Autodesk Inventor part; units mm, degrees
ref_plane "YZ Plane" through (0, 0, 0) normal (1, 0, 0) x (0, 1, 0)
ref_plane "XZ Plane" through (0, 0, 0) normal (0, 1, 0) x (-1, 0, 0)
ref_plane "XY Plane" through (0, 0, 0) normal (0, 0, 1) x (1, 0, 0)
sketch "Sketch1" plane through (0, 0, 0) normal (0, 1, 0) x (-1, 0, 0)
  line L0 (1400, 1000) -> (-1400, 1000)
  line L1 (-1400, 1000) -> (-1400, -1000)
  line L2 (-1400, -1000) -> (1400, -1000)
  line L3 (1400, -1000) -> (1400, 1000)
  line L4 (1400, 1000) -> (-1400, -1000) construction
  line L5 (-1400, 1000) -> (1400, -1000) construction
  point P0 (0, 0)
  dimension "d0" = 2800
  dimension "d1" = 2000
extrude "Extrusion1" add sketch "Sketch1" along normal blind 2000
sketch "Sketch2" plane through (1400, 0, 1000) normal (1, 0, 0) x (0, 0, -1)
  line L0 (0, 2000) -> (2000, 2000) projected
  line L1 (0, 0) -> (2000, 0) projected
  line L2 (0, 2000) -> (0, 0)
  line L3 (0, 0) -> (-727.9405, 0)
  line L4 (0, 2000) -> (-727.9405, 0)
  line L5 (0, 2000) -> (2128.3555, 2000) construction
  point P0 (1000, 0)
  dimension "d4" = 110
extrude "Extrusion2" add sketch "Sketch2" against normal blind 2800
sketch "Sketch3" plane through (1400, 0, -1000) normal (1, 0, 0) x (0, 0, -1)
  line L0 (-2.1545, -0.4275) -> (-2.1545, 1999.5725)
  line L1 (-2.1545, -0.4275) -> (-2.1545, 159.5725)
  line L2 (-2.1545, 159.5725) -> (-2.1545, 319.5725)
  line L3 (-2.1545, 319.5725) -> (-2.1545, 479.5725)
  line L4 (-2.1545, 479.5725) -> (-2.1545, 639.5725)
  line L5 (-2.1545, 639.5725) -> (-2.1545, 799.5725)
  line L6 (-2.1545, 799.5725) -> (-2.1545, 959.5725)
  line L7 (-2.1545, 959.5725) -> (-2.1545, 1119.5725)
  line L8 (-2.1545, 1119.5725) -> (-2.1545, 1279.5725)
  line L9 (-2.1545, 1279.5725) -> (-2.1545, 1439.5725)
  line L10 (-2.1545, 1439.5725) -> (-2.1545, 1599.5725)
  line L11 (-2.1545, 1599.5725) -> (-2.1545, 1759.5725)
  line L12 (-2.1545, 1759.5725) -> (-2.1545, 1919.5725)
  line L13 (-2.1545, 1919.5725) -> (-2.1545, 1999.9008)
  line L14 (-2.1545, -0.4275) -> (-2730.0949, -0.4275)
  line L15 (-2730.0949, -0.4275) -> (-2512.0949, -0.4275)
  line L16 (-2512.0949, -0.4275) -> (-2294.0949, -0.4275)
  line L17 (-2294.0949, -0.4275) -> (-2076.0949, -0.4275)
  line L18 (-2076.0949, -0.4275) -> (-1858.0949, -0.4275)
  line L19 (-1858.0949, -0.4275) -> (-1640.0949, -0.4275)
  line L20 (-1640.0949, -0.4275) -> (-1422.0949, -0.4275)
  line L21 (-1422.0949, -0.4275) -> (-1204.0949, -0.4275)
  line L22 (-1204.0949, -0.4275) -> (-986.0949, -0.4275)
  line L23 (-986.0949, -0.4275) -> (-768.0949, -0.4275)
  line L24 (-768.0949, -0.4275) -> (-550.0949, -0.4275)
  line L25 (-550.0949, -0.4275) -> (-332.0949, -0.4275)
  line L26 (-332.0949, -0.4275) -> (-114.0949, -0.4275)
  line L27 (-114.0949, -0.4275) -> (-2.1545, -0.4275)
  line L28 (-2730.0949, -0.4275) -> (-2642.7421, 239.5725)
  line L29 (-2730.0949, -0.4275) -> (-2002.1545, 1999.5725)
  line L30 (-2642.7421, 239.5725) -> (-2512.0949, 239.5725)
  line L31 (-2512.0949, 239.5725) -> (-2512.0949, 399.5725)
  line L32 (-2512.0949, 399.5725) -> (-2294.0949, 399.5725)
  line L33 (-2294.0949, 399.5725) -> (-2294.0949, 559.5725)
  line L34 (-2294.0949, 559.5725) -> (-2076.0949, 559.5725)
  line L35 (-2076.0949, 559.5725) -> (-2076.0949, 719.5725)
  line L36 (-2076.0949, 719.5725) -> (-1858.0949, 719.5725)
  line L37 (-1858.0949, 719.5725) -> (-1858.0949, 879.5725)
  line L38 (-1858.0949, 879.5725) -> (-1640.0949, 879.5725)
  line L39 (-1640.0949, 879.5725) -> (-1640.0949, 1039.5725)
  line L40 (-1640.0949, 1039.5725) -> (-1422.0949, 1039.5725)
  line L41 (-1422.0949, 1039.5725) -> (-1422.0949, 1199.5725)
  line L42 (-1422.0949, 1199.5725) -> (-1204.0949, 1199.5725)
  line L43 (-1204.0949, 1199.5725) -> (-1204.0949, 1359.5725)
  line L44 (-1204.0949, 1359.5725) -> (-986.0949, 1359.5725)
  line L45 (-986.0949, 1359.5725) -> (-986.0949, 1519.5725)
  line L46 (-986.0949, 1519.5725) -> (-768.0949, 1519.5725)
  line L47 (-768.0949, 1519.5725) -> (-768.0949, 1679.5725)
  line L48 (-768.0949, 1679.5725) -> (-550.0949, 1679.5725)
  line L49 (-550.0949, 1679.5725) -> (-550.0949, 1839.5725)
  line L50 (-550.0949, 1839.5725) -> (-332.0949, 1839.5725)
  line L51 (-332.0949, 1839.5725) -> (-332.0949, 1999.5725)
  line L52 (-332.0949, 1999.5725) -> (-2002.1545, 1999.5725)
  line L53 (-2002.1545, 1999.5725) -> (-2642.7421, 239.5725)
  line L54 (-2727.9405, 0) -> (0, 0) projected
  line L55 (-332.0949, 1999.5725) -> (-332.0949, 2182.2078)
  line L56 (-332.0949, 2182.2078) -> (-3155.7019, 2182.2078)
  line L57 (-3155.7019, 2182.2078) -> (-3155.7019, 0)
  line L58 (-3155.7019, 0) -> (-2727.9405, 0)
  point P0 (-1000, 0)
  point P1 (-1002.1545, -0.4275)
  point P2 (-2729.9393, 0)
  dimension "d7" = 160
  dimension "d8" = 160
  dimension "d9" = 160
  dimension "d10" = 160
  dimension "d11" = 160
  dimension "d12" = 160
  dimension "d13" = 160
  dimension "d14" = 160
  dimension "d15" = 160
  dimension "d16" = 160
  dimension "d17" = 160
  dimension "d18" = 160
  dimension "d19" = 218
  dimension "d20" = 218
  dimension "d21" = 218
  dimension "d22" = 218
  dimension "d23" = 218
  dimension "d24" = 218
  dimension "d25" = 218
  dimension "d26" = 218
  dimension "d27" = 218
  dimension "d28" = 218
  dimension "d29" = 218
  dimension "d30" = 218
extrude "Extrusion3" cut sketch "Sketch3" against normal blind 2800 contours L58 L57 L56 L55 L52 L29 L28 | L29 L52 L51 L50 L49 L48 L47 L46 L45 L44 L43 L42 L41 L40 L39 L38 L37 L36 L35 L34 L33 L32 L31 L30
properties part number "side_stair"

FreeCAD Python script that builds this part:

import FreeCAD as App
import Part
import Sketcher
from FreeCAD import Vector
Q = App.Units.Quantity

doc = App.newDocument("Part")
params = doc.addObject("Spreadsheet::Sheet", "Params")
for row, (alias, value) in enumerate([
    ("sketch1_width", "2800 mm"),
    ("sketch1_height", "2000 mm"),
    ("pad1_length", "2000 mm"),
    ("sketch2_width", "2000 mm"),
    ("pad2_length", "2800 mm"),
    ("sketch3_width", "160 mm"),
    ("sketch3_height", "218 mm"),
    ("pocket1_length", "2800 mm"),
], start=1):
    params.set(f"A{row}", alias)
    params.set(f"B{row}", "=" + value)
    params.setAlias(f"B{row}", alias)

body = doc.addObject("PartDesign::Body", "Body")

sketch1 = doc.addObject("Sketcher::SketchObject", "Sketch")
body.addObject(sketch1)
sketch1.AttachmentSupport = (doc.XZ_Plane, [""])
sketch1.MapMode = "FlatFace"
sketch1.addGeometry(Part.LineSegment(Vector(-1400, -1000, 0), Vector(-1400, 1000, 0)), False)
sketch1.addGeometry(Part.LineSegment(Vector(-1400, 1000, 0), Vector(1400, 1000, 0)), False)
sketch1.addGeometry(Part.LineSegment(Vector(1400, 1000, 0), Vector(1400, -1000, 0)), False)
sketch1.addGeometry(Part.LineSegment(Vector(1400, -1000, 0), Vector(-1400, -1000, 0)), False)
sketch1.addConstraint(Sketcher.Constraint("Coincident", 0, 2, 1, 1))
sketch1.addConstraint(Sketcher.Constraint("Coincident", 1, 2, 2, 1))
sketch1.addConstraint(Sketcher.Constraint("Coincident", 2, 2, 3, 1))
sketch1.addConstraint(Sketcher.Constraint("Coincident", 3, 2, 0, 1))
sketch1.addConstraint(Sketcher.Constraint("Vertical", 0))
sketch1.addConstraint(Sketcher.Constraint("Horizontal", 1))
sketch1.addConstraint(Sketcher.Constraint("Vertical", 2))
sketch1.addConstraint(Sketcher.Constraint("Horizontal", 3))
sketch1.addConstraint(Sketcher.Constraint("Symmetric", 0, 2, 2, 2, -1, 1))
sketch1.addConstraint(Sketcher.Constraint("DistanceX", 1, 1, 1, 2, Q("2800 mm")))
sketch1.addConstraint(Sketcher.Constraint("DistanceY", 0, 1, 0, 2, Q("2000 mm")))
sketch1.setExpression("Constraints[9]", "Params.sketch1_width")
sketch1.setExpression("Constraints[10]", "Params.sketch1_height")
pad1 = doc.addObject("PartDesign::Pad", "Pad")
body.addObject(pad1)
pad1.Profile = sketch1
pad1.setExpression("Length", "Params.pad1_length")
pad1.Reversed = True

sketch2 = doc.addObject("Sketcher::SketchObject", "Sketch001")
body.addObject(sketch2)
sketch2.AttachmentSupport = (doc.YZ_Plane, [""])
sketch2.MapMode = "FlatFace"
sketch2.AttachmentOffset = App.Placement(Vector(0, 0, 1400), App.Rotation())
sketch2.addGeometry(Part.LineSegment(Vector(0, 1000, 0), Vector(2000, 1000, 0)), False)
sketch2.addGeometry(Part.LineSegment(Vector(2000, 1000, 0), Vector(0, 1728, 0)), False)
sketch2.addGeometry(Part.LineSegment(Vector(0, 1728, 0), Vector(0, 1000, 0)), False)
sketch2.addConstraint(Sketcher.Constraint("Coincident", 0, 2, 1, 1))
sketch2.addConstraint(Sketcher.Constraint("Coincident", 1, 2, 2, 1))
sketch2.addConstraint(Sketcher.Constraint("Coincident", 2, 2, 0, 1))
sketch2.addConstraint(Sketcher.Constraint("Horizontal", 0))
sketch2.addConstraint(Sketcher.Constraint("Vertical", 2))
sketch2.addConstraint(Sketcher.Constraint("PointOnObject", 1, 2, -2))
sketch2.addConstraint(Sketcher.Constraint("DistanceX", 0, 1, 0, 2, Q("2000 mm")))
sketch2.addConstraint(Sketcher.Constraint("Angle", 1, Q("160 deg")))
sketch2.addConstraint(Sketcher.Constraint("DistanceY", -1, 1, 0, 2, Q("1000 mm")))
sketch2.setExpression("Constraints[6]", "Params.sketch2_width")
pad2 = doc.addObject("PartDesign::Pad", "Pad001")
body.addObject(pad2)
pad2.Profile = sketch2
pad2.setExpression("Length", "Params.pad2_length")
pad2.Reversed = True

sketch3 = doc.addObject("Sketcher::SketchObject", "Sketch002")
body.addObject(sketch3)
sketch3.AttachmentSupport = (doc.YZ_Plane, [""])
sketch3.MapMode = "FlatFace"
sketch3.AttachmentOffset = App.Placement(Vector(0, 0, 1400), App.Rotation())
sketch3.addGeometry(Part.LineSegment(Vector(0, 2156, 0), Vector(0, 1730, 0)), False)
sketch3.addGeometry(Part.LineSegment(Vector(0, 1730, 0), Vector(240, 1643, 0)), False)
sketch3.addGeometry(Part.LineSegment(Vector(240, 1643, 0), Vector(240, 1512, 0)), False)
sketch3.addGeometry(Part.LineSegment(Vector(240, 1512, 0), Vector(400, 1512, 0)), False)
sketch3.addGeometry(Part.LineSegment(Vector(400, 1512, 0), Vector(400, 1294, 0)), False)
sketch3.addGeometry(Part.LineSegment(Vector(400, 1294, 0), Vector(560, 1294, 0)), False)
sketch3.addGeometry(Part.LineSegment(Vector(560, 1294, 0), Vector(560, 1076, 0)), False)
sketch3.addGeometry(Part.LineSegment(Vector(560, 1076, 0), Vector(720, 1076, 0)), False)
sketch3.addGeometry(Part.LineSegment(Vector(720, 1076, 0), Vector(720, 858, 0)), False)
sketch3.addGeometry(Part.LineSegment(Vector(720, 858, 0), Vector(880, 858, 0)), False)
sketch3.addGeometry(Part.LineSegment(Vector(880, 858, 0), Vector(880, 640, 0)), False)
sketch3.addGeometry(Part.LineSegment(Vector(880, 640, 0), Vector(1040, 640, 0)), False)
sketch3.addGeometry(Part.LineSegment(Vector(1040, 640, 0), Vector(1040, 422, 0)), False)
sketch3.addGeometry(Part.LineSegment(Vector(1040, 422, 0), Vector(1200, 422, 0)), False)
sketch3.addGeometry(Part.LineSegment(Vector(1200, 422, 0), Vector(1200, 204, 0)), False)
sketch3.addGeometry(Part.LineSegment(Vector(1200, 204, 0), Vector(1360, 204, 0)), False)
sketch3.addGeometry(Part.LineSegment(Vector(1360, 204, 0), Vector(1360, -14, 0)), False)
sketch3.addGeometry(Part.LineSegment(Vector(1360, -14, 0), Vector(1520, -14, 0)), False)
sketch3.addGeometry(Part.LineSegment(Vector(1520, -14, 0), Vector(1520, -232, 0)), False)
sketch3.addGeometry(Part.LineSegment(Vector(1520, -232, 0), Vector(1680, -232, 0)), False)
sketch3.addGeometry(Part.LineSegment(Vector(1680, -232, 0), Vector(1680, -450, 0)), False)
sketch3.addGeometry(Part.LineSegment(Vector(1680, -450, 0), Vector(1840, -450, 0)), False)
sketch3.addGeometry(Part.LineSegment(Vector(1840, -450, 0), Vector(1840, -668, 0)), False)
sketch3.addGeometry(Part.LineSegment(Vector(1840, -668, 0), Vector(2182, -668, 0)), False)
sketch3.addGeometry(Part.LineSegment(Vector(2182, -668, 0), Vector(2182, 2156, 0)), False)
sketch3.addGeometry(Part.LineSegment(Vector(2182, 2156, 0), Vector(0, 2156, 0)), False)
sketch3.addConstraint(Sketcher.Constraint("Coincident", 0, 2, 1, 1))
sketch3.addConstraint(Sketcher.Constraint("Coincident", 1, 2, 2, 1))
sketch3.addConstraint(Sketcher.Constraint("Coincident", 2, 2, 3, 1))
sketch3.addConstraint(Sketcher.Constraint("Coincident", 3, 2, 4, 1))
sketch3.addConstraint(Sketcher.Constraint("Coincident", 4, 2, 5, 1))
sketch3.addConstraint(Sketcher.Constraint("Coincident", 5, 2, 6, 1))
sketch3.addConstraint(Sketcher.Constraint("Coincident", 6, 2, 7, 1))
sketch3.addConstraint(Sketcher.Constraint("Coincident", 7, 2, 8, 1))
sketch3.addConstraint(Sketcher.Constraint("Coincident", 8, 2, 9, 1))
sketch3.addConstraint(Sketcher.Constraint("Coincident", 9, 2, 10, 1))
sketch3.addConstraint(Sketcher.Constraint("Coincident", 10, 2, 11, 1))
sketch3.addConstraint(Sketcher.Constraint("Coincident", 11, 2, 12, 1))
sketch3.addConstraint(Sketcher.Constraint("Coincident", 12, 2, 13, 1))
sketch3.addConstraint(Sketcher.Constraint("Coincident", 13, 2, 14, 1))
sketch3.addConstraint(Sketcher.Constraint("Coincident", 14, 2, 15, 1))
sketch3.addConstraint(Sketcher.Constraint("Coincident", 15, 2, 16, 1))
sketch3.addConstraint(Sketcher.Constraint("Coincident", 16, 2, 17, 1))
sketch3.addConstraint(Sketcher.Constraint("Coincident", 17, 2, 18, 1))
sketch3.addConstraint(Sketcher.Constraint("Coincident", 18, 2, 19, 1))
sketch3.addConstraint(Sketcher.Constraint("Coincident", 19, 2, 20, 1))
sketch3.addConstraint(Sketcher.Constraint("Coincident", 20, 2, 21, 1))
sketch3.addConstraint(Sketcher.Constraint("Coincident", 21, 2, 22, 1))
sketch3.addConstraint(Sketcher.Constraint("Coincident", 22, 2, 23, 1))
sketch3.addConstraint(Sketcher.Constraint("Coincident", 23, 2, 24, 1))
sketch3.addConstraint(Sketcher.Constraint("Coincident", 24, 2, 25, 1))
sketch3.addConstraint(Sketcher.Constraint("Coincident", 25, 2, 0, 1))
sketch3.addConstraint(Sketcher.Constraint("Vertical", 0))
sketch3.addConstraint(Sketcher.Constraint("Vertical", 2))
sketch3.addConstraint(Sketcher.Constraint("Horizontal", 3))
sketch3.addConstraint(Sketcher.Constraint("Vertical", 4))
sketch3.addConstraint(Sketcher.Constraint("Horizontal", 5))
sketch3.addConstraint(Sketcher.Constraint("Vertical", 6))
sketch3.addConstraint(Sketcher.Constraint("Horizontal", 7))
sketch3.addConstraint(Sketcher.Constraint("Vertical", 8))
sketch3.addConstraint(Sketcher.Constraint("Horizontal", 9))
sketch3.addConstraint(Sketcher.Constraint("Vertical", 10))
sketch3.addConstraint(Sketcher.Constraint("Horizontal", 11))
sketch3.addConstraint(Sketcher.Constraint("Vertical", 12))
sketch3.addConstraint(Sketcher.Constraint("Horizontal", 13))
sketch3.addConstraint(Sketcher.Constraint("Vertical", 14))
sketch3.addConstraint(Sketcher.Constraint("Horizontal", 15))
sketch3.addConstraint(Sketcher.Constraint("Vertical", 16))
sketch3.addConstraint(Sketcher.Constraint("Horizontal", 17))
sketch3.addConstraint(Sketcher.Constraint("Vertical", 18))
sketch3.addConstraint(Sketcher.Constraint("Horizontal", 19))
sketch3.addConstraint(Sketcher.Constraint("Vertical", 20))
sketch3.addConstraint(Sketcher.Constraint("Horizontal", 21))
sketch3.addConstraint(Sketcher.Constraint("Vertical", 22))
sketch3.addConstraint(Sketcher.Constraint("Horizontal", 23))
sketch3.addConstraint(Sketcher.Constraint("Vertical", 24))
sketch3.addConstraint(Sketcher.Constraint("Horizontal", 25))
sketch3.addConstraint(Sketcher.Constraint("PointOnObject", 0, 2, -2))
sketch3.addConstraint(Sketcher.Constraint("Equal", 3, 5))
sketch3.addConstraint(Sketcher.Constraint("Equal", 5, 7))
sketch3.addConstraint(Sketcher.Constraint("Equal", 7, 9))
sketch3.addConstraint(Sketcher.Constraint("Equal", 9, 11))
sketch3.addConstraint(Sketcher.Constraint("Equal", 11, 13))
sketch3.addConstraint(Sketcher.Constraint("Equal", 13, 15))
sketch3.addConstraint(Sketcher.Constraint("Equal", 15, 17))
sketch3.addConstraint(Sketcher.Constraint("Equal", 17, 19))
sketch3.addConstraint(Sketcher.Constraint("Equal", 19, 21))
sketch3.addConstraint(Sketcher.Constraint("Equal", 4, 6))
sketch3.addConstraint(Sketcher.Constraint("Equal", 6, 8))
sketch3.addConstraint(Sketcher.Constraint("Equal", 8, 10))
sketch3.addConstraint(Sketcher.Constraint("Equal", 10, 12))
sketch3.addConstraint(Sketcher.Constraint("Equal", 12, 14))
sketch3.addConstraint(Sketcher.Constraint("Equal", 14, 16))
sketch3.addConstraint(Sketcher.Constraint("Equal", 16, 18))
sketch3.addConstraint(Sketcher.Constraint("Equal", 18, 20))
sketch3.addConstraint(Sketcher.Constraint("Equal", 20, 22))
sketch3.addConstraint(Sketcher.Constraint("DistanceX", 3, 1, 3, 2, Q("160 mm")))
sketch3.addConstraint(Sketcher.Constraint("DistanceY", 4, 2, 4, 1, Q("218 mm")))
sketch3.addConstraint(Sketcher.Constraint("Angle", 1, Q("-20 deg")))
sketch3.addConstraint(Sketcher.Constraint("DistanceY", 24, 1, 24, 2, Q("2823.607 mm")))
sketch3.addConstraint(Sketcher.Constraint("DistanceX", 23, 1, 23, 2, Q("342.6353 mm")))
sketch3.addConstraint(Sketcher.Constraint("DistanceX", 25, 2, 25, 1, Q("2182.2078 mm")))
sketch3.addConstraint(Sketcher.Constraint("DistanceY", 0, 2, 0, 1, Q("425.7626 mm")))
sketch3.addConstraint(Sketcher.Constraint("DistanceY", -1, 1, 1, 2, Q("1642.742 mm")))
sketch3.setExpression("Constraints[70]", "Params.sketch3_width")
sketch3.setExpression("Constraints[71]", "Params.sketch3_height")
pocket1 = doc.addObject("PartDesign::Pocket", "Pocket")
body.addObject(pocket1)
pocket1.Profile = sketch3
pocket1.setExpression("Length", "Params.pocket1_length")

doc.recompute()
